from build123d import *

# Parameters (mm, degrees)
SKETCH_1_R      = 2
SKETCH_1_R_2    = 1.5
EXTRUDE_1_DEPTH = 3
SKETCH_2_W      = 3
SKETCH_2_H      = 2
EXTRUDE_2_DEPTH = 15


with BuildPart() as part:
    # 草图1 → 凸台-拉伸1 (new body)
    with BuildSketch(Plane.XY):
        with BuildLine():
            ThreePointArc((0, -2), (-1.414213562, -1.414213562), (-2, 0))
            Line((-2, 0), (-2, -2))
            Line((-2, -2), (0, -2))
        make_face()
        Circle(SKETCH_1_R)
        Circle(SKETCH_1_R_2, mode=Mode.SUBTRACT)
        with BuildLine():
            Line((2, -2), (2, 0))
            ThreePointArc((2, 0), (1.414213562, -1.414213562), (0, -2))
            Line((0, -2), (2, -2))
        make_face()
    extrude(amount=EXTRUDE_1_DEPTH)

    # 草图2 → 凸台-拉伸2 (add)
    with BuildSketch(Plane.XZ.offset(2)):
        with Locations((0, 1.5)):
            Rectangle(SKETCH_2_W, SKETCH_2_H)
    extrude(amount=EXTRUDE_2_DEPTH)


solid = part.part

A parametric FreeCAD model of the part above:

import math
import FreeCAD as App
import Part
import Sketcher
from FreeCAD import Vector
Q = App.Units.Quantity

doc = App.newDocument("Part")
body = doc.addObject("PartDesign::Body", "Body")

# Sketch on XY plane
sketch1 = body.newObject("Sketcher::SketchObject", "Sketch")
sketch1.AttachmentSupport = (doc.getObject("XY_Plane"), [""])
sketch1.MapMode = "FlatFace"
sketch1.addGeometry(Part.LineSegment(Vector(-2, 0, 0), Vector(-2, -2, 0)), False)
sketch1.addGeometry(Part.LineSegment(Vector(-2, -2, 0), Vector(2, -2, 0)), False)
sketch1.addGeometry(Part.LineSegment(Vector(2, -2, 0), Vector(2, 0, 0)), False)
sketch1.addGeometry(Part.ArcOfCircle(Part.Circle(Vector(0, 0, 0), Vector(0, 0, 1), 2), math.radians(0), math.radians(180)), False)
sketch1.addGeometry(Part.Circle(Vector(0, 0, 0), Vector(0, 0, 1), 1.5), False)
sketch1.addConstraint(Sketcher.Constraint("Coincident", 0, 2, 1, 1))
sketch1.addConstraint(Sketcher.Constraint("Coincident", 1, 2, 2, 1))
sketch1.addConstraint(Sketcher.Constraint("Tangent", 2, 2, 3, 1))
sketch1.addConstraint(Sketcher.Constraint("Tangent", 3, 2, 0, 1))
sketch1.addConstraint(Sketcher.Constraint("Vertical", 0))
sketch1.addConstraint(Sketcher.Constraint("Horizontal", 1))
sketch1.addConstraint(Sketcher.Constraint("Vertical", 2))
sketch1.addConstraint(Sketcher.Constraint("Coincident", 3, 3, -1, 1))
sketch1.addConstraint(Sketcher.Constraint("Coincident", 4, 3, -1, 1))
sketch1.addConstraint(Sketcher.Constraint("Diameter", 4, Q("3 mm")))
sketch1.addConstraint(Sketcher.Constraint("Radius", 3, Q("2 mm")))
sketch1.addConstraint(Sketcher.Constraint("DistanceY", 0, 2, 0, 1, Q("2 mm")))
pad1 = body.newObject("PartDesign::Pad", "Pad")
pad1.Profile = sketch1
pad1.Length = 3

# Sketch on XZ plane
sketch2 = body.newObject("Sketcher::SketchObject", "Sketch001")
sketch2.AttachmentSupport = (doc.getObject("XZ_Plane"), [""])
sketch2.MapMode = "FlatFace"
sketch2.AttachmentOffset = App.Placement(Vector(0, 0, 2), App.Rotation())
sketch2.addGeometry(Part.LineSegment(Vector(-1.5, 2.5, 0), Vector(-1.5, 0.5, 0)), False)
sketch2.addGeometry(Part.LineSegment(Vector(-1.5, 0.5, 0), Vector(1.5, 0.5, 0)), False)
sketch2.addGeometry(Part.LineSegment(Vector(1.5, 0.5, 0), Vector(1.5, 2.5, 0)), False)
sketch2.addGeometry(Part.LineSegment(Vector(1.5, 2.5, 0), Vector(-1.5, 2.5, 0)), False)
sketch2.addConstraint(Sketcher.Constraint("Coincident", 0, 2, 1, 1))
sketch2.addConstraint(Sketcher.Constraint("Coincident", 1, 2, 2, 1))
sketch2.addConstraint(Sketcher.Constraint("Coincident", 2, 2, 3, 1))
sketch2.addConstraint(Sketcher.Constraint("Coincident", 3, 2, 0, 1))
sketch2.addConstraint(Sketcher.Constraint("Vertical", 0))
sketch2.addConstraint(Sketcher.Constraint("Horizontal", 1))
sketch2.addConstraint(Sketcher.Constraint("Vertical", 2))
sketch2.addConstraint(Sketcher.Constraint("Horizontal", 3))
sketch2.addConstraint(Sketcher.Constraint("DistanceX", 1, 1, 1, 2, Q("3 mm")))
sketch2.addConstraint(Sketcher.Constraint("DistanceY", 0, 2, 0, 1, Q("2 mm")))
sketch2.addConstraint(Sketcher.Constraint("DistanceX", 0, 2, -1, 1, Q("1.5 mm")))
sketch2.addConstraint(Sketcher.Constraint("DistanceY", -1, 1, 0, 2, Q("0.5 mm")))
pad2 = body.newObject("PartDesign::Pad", "Pad001")
pad2.Profile = sketch2
pad2.Length = 15

doc.recompute()
